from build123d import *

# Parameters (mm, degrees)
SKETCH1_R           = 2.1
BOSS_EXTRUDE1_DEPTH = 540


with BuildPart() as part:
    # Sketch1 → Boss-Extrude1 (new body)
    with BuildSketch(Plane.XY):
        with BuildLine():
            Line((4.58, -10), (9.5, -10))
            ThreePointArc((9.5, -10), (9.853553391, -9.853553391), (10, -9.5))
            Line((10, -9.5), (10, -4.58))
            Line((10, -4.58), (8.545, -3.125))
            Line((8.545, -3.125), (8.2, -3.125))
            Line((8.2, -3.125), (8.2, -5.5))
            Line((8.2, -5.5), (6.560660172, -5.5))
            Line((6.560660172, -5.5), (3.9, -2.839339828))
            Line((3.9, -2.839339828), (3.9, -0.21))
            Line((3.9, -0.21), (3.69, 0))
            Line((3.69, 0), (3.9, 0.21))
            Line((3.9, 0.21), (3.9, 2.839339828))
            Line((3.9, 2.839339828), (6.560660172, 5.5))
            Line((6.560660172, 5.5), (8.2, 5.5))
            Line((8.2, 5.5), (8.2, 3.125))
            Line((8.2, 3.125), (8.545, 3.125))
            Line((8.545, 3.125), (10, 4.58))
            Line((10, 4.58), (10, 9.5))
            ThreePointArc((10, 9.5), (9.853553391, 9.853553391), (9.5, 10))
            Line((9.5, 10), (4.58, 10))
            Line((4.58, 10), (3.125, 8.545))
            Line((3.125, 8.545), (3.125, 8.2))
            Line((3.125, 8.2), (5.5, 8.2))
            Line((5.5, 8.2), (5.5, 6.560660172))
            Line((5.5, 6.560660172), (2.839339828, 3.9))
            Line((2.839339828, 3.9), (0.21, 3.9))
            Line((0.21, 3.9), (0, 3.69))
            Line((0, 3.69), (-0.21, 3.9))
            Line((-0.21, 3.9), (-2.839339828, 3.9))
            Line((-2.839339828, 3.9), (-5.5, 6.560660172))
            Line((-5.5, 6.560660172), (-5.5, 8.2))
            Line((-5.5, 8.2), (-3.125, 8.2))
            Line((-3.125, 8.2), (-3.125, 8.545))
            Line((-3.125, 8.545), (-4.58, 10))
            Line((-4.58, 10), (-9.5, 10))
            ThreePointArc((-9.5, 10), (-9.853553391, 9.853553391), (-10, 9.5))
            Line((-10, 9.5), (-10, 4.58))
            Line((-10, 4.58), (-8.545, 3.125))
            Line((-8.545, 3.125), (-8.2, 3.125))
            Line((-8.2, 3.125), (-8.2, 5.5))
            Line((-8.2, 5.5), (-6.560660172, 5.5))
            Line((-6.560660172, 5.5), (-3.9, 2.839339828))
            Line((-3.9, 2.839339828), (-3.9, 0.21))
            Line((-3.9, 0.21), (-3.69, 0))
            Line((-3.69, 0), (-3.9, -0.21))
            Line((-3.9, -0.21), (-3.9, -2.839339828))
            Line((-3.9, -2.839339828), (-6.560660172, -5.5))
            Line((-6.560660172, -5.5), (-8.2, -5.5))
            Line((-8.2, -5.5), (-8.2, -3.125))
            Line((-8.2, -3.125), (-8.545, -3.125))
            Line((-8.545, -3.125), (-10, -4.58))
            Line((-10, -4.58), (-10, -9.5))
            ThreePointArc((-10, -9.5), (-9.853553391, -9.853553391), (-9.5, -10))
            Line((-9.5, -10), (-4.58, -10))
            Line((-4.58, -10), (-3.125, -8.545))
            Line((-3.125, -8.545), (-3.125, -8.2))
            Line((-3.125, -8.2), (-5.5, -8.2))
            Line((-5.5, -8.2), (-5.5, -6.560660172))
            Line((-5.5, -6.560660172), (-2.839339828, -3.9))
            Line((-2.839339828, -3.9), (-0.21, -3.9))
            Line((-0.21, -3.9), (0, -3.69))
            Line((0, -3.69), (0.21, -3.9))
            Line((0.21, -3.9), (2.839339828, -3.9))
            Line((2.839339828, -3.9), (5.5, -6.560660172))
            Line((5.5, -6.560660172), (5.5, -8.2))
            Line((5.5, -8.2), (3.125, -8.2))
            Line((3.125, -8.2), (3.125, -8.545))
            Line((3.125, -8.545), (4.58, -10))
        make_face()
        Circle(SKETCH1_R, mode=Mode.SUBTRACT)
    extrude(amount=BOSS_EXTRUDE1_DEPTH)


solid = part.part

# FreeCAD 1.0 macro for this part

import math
import FreeCAD as App
import Part
import Sketcher

V = App.Vector

doc = App.newDocument("Part")
params = doc.addObject("Spreadsheet::Sheet", "Params")
for row, (alias, value) in enumerate([
    ("sketch1_diameter", "4.2 mm"),
    ("sketch1_radius", "0.5 mm"),
    ("sketch1_width", "4.92 mm"),
    ("pad1_length", "540 mm"),
], start=1):
    params.set(f"A{row}", alias)
    params.set(f"B{row}", "=" + value)
    params.setAlias(f"B{row}", alias)

body = doc.addObject("PartDesign::Body", "Body")

# Sketch on XY plane
sketch1 = body.newObject("Sketcher::SketchObject", "Sketch")
sketch1.AttachmentSupport = (doc.getObject("XY_Plane"), [""])
sketch1.MapMode = "FlatFace"
sketch1.addGeometry([
    Part.LineSegment(V(4.58, -10, 0), V(9.5, -10, 0)),  # 0
    Part.ArcOfCircle(Part.Circle(V(9.5, -9.5, 0), V(0, 0, 1), 0.5), math.radians(-90), math.radians(0)),  # 1
    Part.LineSegment(V(10, -9.5, 0), V(10, -4.58, 0)),  # 2
    Part.LineSegment(V(10, -4.58, 0), V(8.545, -3.125, 0)),  # 3
    Part.LineSegment(V(8.545, -3.125, 0), V(8.2, -3.125, 0)),  # 4
    Part.LineSegment(V(8.2, -3.125, 0), V(8.2, -5.5, 0)),  # 5
    Part.LineSegment(V(8.2, -5.5, 0), V(6.56066, -5.5, 0)),  # 6
    Part.LineSegment(V(6.56066, -5.5, 0), V(3.9, -2.83934, 0)),  # 7
    Part.LineSegment(V(3.9, -2.83934, 0), V(3.9, -0.21, 0)),  # 8
    Part.LineSegment(V(3.9, -0.21, 0), V(3.69, 0, 0)),  # 9
    Part.LineSegment(V(3.69, 0, 0), V(3.9, 0.21, 0)),  # 10
    Part.LineSegment(V(3.9, 0.21, 0), V(3.9, 2.83934, 0)),  # 11
    Part.LineSegment(V(3.9, 2.83934, 0), V(6.56066, 5.5, 0)),  # 12
    Part.LineSegment(V(6.56066, 5.5, 0), V(8.2, 5.5, 0)),  # 13
    Part.LineSegment(V(8.2, 5.5, 0), V(8.2, 3.125, 0)),  # 14
    Part.LineSegment(V(8.2, 3.125, 0), V(8.545, 3.125, 0)),  # 15
    Part.LineSegment(V(8.545, 3.125, 0), V(10, 4.58, 0)),  # 16
    Part.LineSegment(V(10, 4.58, 0), V(10, 9.5, 0)),  # 17
    Part.ArcOfCircle(Part.Circle(V(9.5, 9.5, 0), V(0, 0, 1), 0.5), math.radians(0), math.radians(90)),  # 18
    Part.LineSegment(V(9.5, 10, 0), V(4.58, 10, 0)),  # 19
    Part.LineSegment(V(4.58, 10, 0), V(3.125, 8.545, 0)),  # 20
    Part.LineSegment(V(3.125, 8.545, 0), V(3.125, 8.2, 0)),  # 21
    Part.LineSegment(V(3.125, 8.2, 0), V(5.5, 8.2, 0)),  # 22
    Part.LineSegment(V(5.5, 8.2, 0), V(5.5, 6.56066, 0)),  # 23
    Part.LineSegment(V(5.5, 6.56066, 0), V(2.83934, 3.9, 0)),  # 24
    Part.LineSegment(V(2.83934, 3.9, 0), V(0.21, 3.9, 0)),  # 25
    Part.LineSegment(V(0.21, 3.9, 0), V(0, 3.69, 0)),  # 26
    Part.LineSegment(V(0, 3.69, 0), V(-0.21, 3.9, 0)),  # 27
    Part.LineSegment(V(-0.21, 3.9, 0), V(-2.83934, 3.9, 0)),  # 28
    Part.LineSegment(V(-2.83934, 3.9, 0), V(-5.5, 6.56066, 0)),  # 29
    Part.LineSegment(V(-5.5, 6.56066, 0), V(-5.5, 8.2, 0)),  # 30
    Part.LineSegment(V(-5.5, 8.2, 0), V(-3.125, 8.2, 0)),  # 31
    Part.LineSegment(V(-3.125, 8.2, 0), V(-3.125, 8.545, 0)),  # 32
    Part.LineSegment(V(-3.125, 8.545, 0), V(-4.58, 10, 0)),  # 33
    Part.LineSegment(V(-4.58, 10, 0), V(-9.5, 10, 0)),  # 34
    Part.ArcOfCircle(Part.Circle(V(-9.5, 9.5, 0), V(0, 0, 1), 0.5), math.radians(90), math.radians(180)),  # 35
    Part.LineSegment(V(-10, 9.5, 0), V(-10, 4.58, 0)),  # 36
    Part.LineSegment(V(-10, 4.58, 0), V(-8.545, 3.125, 0)),  # 37
    Part.LineSegment(V(-8.545, 3.125, 0), V(-8.2, 3.125, 0)),  # 38
    Part.LineSegment(V(-8.2, 3.125, 0), V(-8.2, 5.5, 0)),  # 39
    Part.LineSegment(V(-8.2, 5.5, 0), V(-6.56066, 5.5, 0)),  # 40
    Part.LineSegment(V(-6.56066, 5.5, 0), V(-3.9, 2.83934, 0)),  # 41
    Part.LineSegment(V(-3.9, 2.83934, 0), V(-3.9, 0.21, 0)),  # 42
    Part.LineSegment(V(-3.9, 0.21, 0), V(-3.69, 0, 0)),  # 43
    Part.LineSegment(V(-3.69, 0, 0), V(-3.9, -0.21, 0)),  # 44
    Part.LineSegment(V(-3.9, -0.21, 0), V(-3.9, -2.83934, 0)),  # 45
    Part.LineSegment(V(-3.9, -2.83934, 0), V(-6.56066, -5.5, 0)),  # 46
    Part.LineSegment(V(-6.56066, -5.5, 0), V(-8.2, -5.5, 0)),  # 47
    Part.LineSegment(V(-8.2, -5.5, 0), V(-8.2, -3.125, 0)),  # 48
    Part.LineSegment(V(-8.2, -3.125, 0), V(-8.545, -3.125, 0)),  # 49
    Part.LineSegment(V(-8.545, -3.125, 0), V(-10, -4.58, 0)),  # 50
    Part.LineSegment(V(-10, -4.58, 0), V(-10, -9.5, 0)),  # 51
    Part.ArcOfCircle(Part.Circle(V(-9.5, -9.5, 0), V(0, 0, 1), 0.5), math.radians(180), math.radians(270)),  # 52
    Part.LineSegment(V(-9.5, -10, 0), V(-4.58, -10, 0)),  # 53
    Part.LineSegment(V(-4.58, -10, 0), V(-3.125, -8.545, 0)),  # 54
    Part.LineSegment(V(-3.125, -8.545, 0), V(-3.125, -8.2, 0)),  # 55
    Part.LineSegment(V(-3.125, -8.2, 0), V(-5.5, -8.2, 0)),  # 56
    Part.LineSegment(V(-5.5, -8.2, 0), V(-5.5, -6.56066, 0)),  # 57
    Part.LineSegment(V(-5.5, -6.56066, 0), V(-2.83934, -3.9, 0)),  # 58
    Part.LineSegment(V(-2.83934, -3.9, 0), V(-0.21, -3.9, 0)),  # 59
    Part.LineSegment(V(-0.21, -3.9, 0), V(0, -3.69, 0)),  # 60
    Part.LineSegment(V(0, -3.69, 0), V(0.21, -3.9, 0)),  # 61
    Part.LineSegment(V(0.21, -3.9, 0), V(2.83934, -3.9, 0)),  # 62
    Part.LineSegment(V(2.83934, -3.9, 0), V(5.5, -6.56066, 0)),  # 63
    Part.LineSegment(V(5.5, -6.56066, 0), V(5.5, -8.2, 0)),  # 64
    Part.LineSegment(V(5.5, -8.2, 0), V(3.125, -8.2, 0)),  # 65
    Part.LineSegment(V(3.125, -8.2, 0), V(3.125, -8.545, 0)),  # 66
    Part.LineSegment(V(3.125, -8.545, 0), V(4.58, -10, 0)),  # 67
    Part.Circle(V(0, 0, 0), V(0, 0, 1), 2.1),  # 68
], False)
sketch1.addConstraint([
    Sketcher.Constraint("Tangent", 0, 2, 1, 1),
    Sketcher.Constraint("Tangent", 1, 2, 2, 1),
    Sketcher.Constraint("Coincident", 2, 2, 3, 1),
    Sketcher.Constraint("Coincident", 3, 2, 4, 1),
    Sketcher.Constraint("Coincident", 4, 2, 5, 1),
    Sketcher.Constraint("Coincident", 5, 2, 6, 1),
    Sketcher.Constraint("Coincident", 6, 2, 7, 1),
    Sketcher.Constraint("Coincident", 7, 2, 8, 1),
    Sketcher.Constraint("Coincident", 8, 2, 9, 1),
    Sketcher.Constraint("Coincident", 9, 2, 10, 1),
    Sketcher.Constraint("Coincident", 10, 2, 11, 1),
    Sketcher.Constraint("Coincident", 11, 2, 12, 1),
    Sketcher.Constraint("Coincident", 12, 2, 13, 1),
    Sketcher.Constraint("Coincident", 13, 2, 14, 1),
    Sketcher.Constraint("Coincident", 14, 2, 15, 1),
    Sketcher.Constraint("Coincident", 15, 2, 16, 1),
    Sketcher.Constraint("Coincident", 16, 2, 17, 1),
    Sketcher.Constraint("Tangent", 17, 2, 18, 1),
    Sketcher.Constraint("Tangent", 18, 2, 19, 1),
    Sketcher.Constraint("Coincident", 19, 2, 20, 1),
    Sketcher.Constraint("Coincident", 20, 2, 21, 1),
    Sketcher.Constraint("Coincident", 21, 2, 22, 1),
    Sketcher.Constraint("Coincident", 22, 2, 23, 1),
    Sketcher.Constraint("Coincident", 23, 2, 24, 1),
    Sketcher.Constraint("Coincident", 24, 2, 25, 1),
    Sketcher.Constraint("Coincident", 25, 2, 26, 1),
    Sketcher.Constraint("Coincident", 26, 2, 27, 1),
    Sketcher.Constraint("Coincident", 27, 2, 28, 1),
    Sketcher.Constraint("Coincident", 28, 2, 29, 1),
    Sketcher.Constraint("Coincident", 29, 2, 30, 1),
    Sketcher.Constraint("Coincident", 30, 2, 31, 1),
    Sketcher.Constraint("Coincident", 31, 2, 32, 1),
    Sketcher.Constraint("Coincident", 32, 2, 33, 1),
    Sketcher.Constraint("Coincident", 33, 2, 34, 1),
    Sketcher.Constraint("Tangent", 34, 2, 35, 1),
    Sketcher.Constraint("Tangent", 35, 2, 36, 1),
    Sketcher.Constraint("Coincident", 36, 2, 37, 1),
    Sketcher.Constraint("Coincident", 37, 2, 38, 1),
    Sketcher.Constraint("Coincident", 38, 2, 39, 1),
    Sketcher.Constraint("Coincident", 39, 2, 40, 1),
    Sketcher.Constraint("Coincident", 40, 2, 41, 1),
    Sketcher.Constraint("Coincident", 41, 2, 42, 1),
    Sketcher.Constraint("Coincident", 42, 2, 43, 1),
    Sketcher.Constraint("Coincident", 43, 2, 44, 1),
    Sketcher.Constraint("Coincident", 44, 2, 45, 1),
    Sketcher.Constraint("Coincident", 45, 2, 46, 1),
    Sketcher.Constraint("Coincident", 46, 2, 47, 1),
    Sketcher.Constraint("Coincident", 47, 2, 48, 1),
    Sketcher.Constraint("Coincident", 48, 2, 49, 1),
    Sketcher.Constraint("Coincident", 49, 2, 50, 1),
    Sketcher.Constraint("Coincident", 50, 2, 51, 1),
    Sketcher.Constraint("Tangent", 51, 2, 52, 1),
    Sketcher.Constraint("Tangent", 52, 2, 53, 1),
    Sketcher.Constraint("Coincident", 53, 2, 54, 1),
    Sketcher.Constraint("Coincident", 54, 2, 55, 1),
    Sketcher.Constraint("Coincident", 55, 2, 56, 1),
    Sketcher.Constraint("Coincident", 56, 2, 57, 1),
    Sketcher.Constraint("Coincident", 57, 2, 58, 1),
    Sketcher.Constraint("Coincident", 58, 2, 59, 1),
    Sketcher.Constraint("Coincident", 59, 2, 60, 1),
    Sketcher.Constraint("Coincident", 60, 2, 61, 1),
    Sketcher.Constraint("Coincident", 61, 2, 62, 1),
    Sketcher.Constraint("Coincident", 62, 2, 63, 1),
    Sketcher.Constraint("Coincident", 63, 2, 64, 1),
    Sketcher.Constraint("Coincident", 64, 2, 65, 1),
    Sketcher.Constraint("Coincident", 65, 2, 66, 1),
    Sketcher.Constraint("Coincident", 66, 2, 67, 1),
    Sketcher.Constraint("Coincident", 67, 2, 0, 1),
    Sketcher.Constraint("Horizontal", 0),
    Sketcher.Constraint("Vertical", 2),
    Sketcher.Constraint("Horizontal", 4),
    Sketcher.Constraint("Vertical", 5),
    Sketcher.Constraint("Horizontal", 6),
    Sketcher.Constraint("Vertical", 8),
    Sketcher.Constraint("Vertical", 11),
    Sketcher.Constraint("Horizontal", 13),
    Sketcher.Constraint("Vertical", 14),
    Sketcher.Constraint("Horizontal", 15),
    Sketcher.Constraint("Vertical", 17),
    Sketcher.Constraint("Horizontal", 19),
    Sketcher.Constraint("Vertical", 21),
    Sketcher.Constraint("Horizontal", 22),
    Sketcher.Constraint("Vertical", 23),
    Sketcher.Constraint("Horizontal", 25),
    Sketcher.Constraint("Horizontal", 28),
    Sketcher.Constraint("Vertical", 30),
    Sketcher.Constraint("Horizontal", 31),
    Sketcher.Constraint("Vertical", 32),
    Sketcher.Constraint("Horizontal", 34),
    Sketcher.Constraint("Vertical", 36),
    Sketcher.Constraint("Horizontal", 38),
    Sketcher.Constraint("Vertical", 39),
    Sketcher.Constraint("Horizontal", 40),
    Sketcher.Constraint("Vertical", 42),
    Sketcher.Constraint("Vertical", 45),
    Sketcher.Constraint("Horizontal", 47),
    Sketcher.Constraint("Vertical", 48),
    Sketcher.Constraint("Horizontal", 49),
    Sketcher.Constraint("Vertical", 51),
    Sketcher.Constraint("Horizontal", 53),
    Sketcher.Constraint("Vertical", 55),
    Sketcher.Constraint("Horizontal", 56),
    Sketcher.Constraint("Vertical", 57),
    Sketcher.Constraint("Horizontal", 59),
    Sketcher.Constraint("Horizontal", 62),
    Sketcher.Constraint("Vertical", 64),
    Sketcher.Constraint("Horizontal", 65),
    Sketcher.Constraint("Vertical", 66),
    Sketcher.Constraint("Coincident", 68, 3, -1, 1),
    Sketcher.Constraint("Equal", 1, 18),
    Sketcher.Constraint("Equal", 18, 35),
    Sketcher.Constraint("Equal", 35, 52),
    Sketcher.Constraint("Symmetric", 1, 3, 35, 3, -1, 1),
    Sketcher.Constraint("Symmetric", 18, 3, 52, 3, -1, 1),
    Sketcher.Constraint("Symmetric", 3, 2, 37, 2, -1, 1),
    Sketcher.Constraint("Symmetric", 5, 2, 39, 2, -1, 1),
    Sketcher.Constraint("Symmetric", 7, 2, 41, 2, -1, 1),
    Sketcher.Constraint("Symmetric", 9, 2, 43, 2, -1, 1),
    Sketcher.Constraint("Symmetric", 10, 2, 44, 2, -1, 1),
    Sketcher.Constraint("Symmetric", 12, 2, 46, 2, -1, 1),
    Sketcher.Constraint("Symmetric", 14, 2, 48, 2, -1, 1),
    Sketcher.Constraint("Symmetric", 20, 2, 54, 2, -1, 1),
    Sketcher.Constraint("Symmetric", 22, 2, 56, 2, -1, 1),
    Sketcher.Constraint("Symmetric", 24, 2, 58, 2, -1, 1),
    Sketcher.Constraint("Symmetric", 26, 2, 60, 2, -1, 1),
    Sketcher.Constraint("Symmetric", 27, 2, 61, 2, -1, 1),
    Sketcher.Constraint("Symmetric", 29, 2, 63, 2, -1, 1),
    Sketcher.Constraint("Symmetric", 31, 2, 65, 2, -1, 1),
    Sketcher.Constraint("Symmetric", 18, 3, 35, 3, -2),
    Sketcher.Constraint("Symmetric", 25, 2, 27, 2, -2),
    Sketcher.Constraint("Symmetric", 23, 2, 29, 2, -2),
    Sketcher.Constraint("Symmetric", 21, 2, 31, 2, -2),
    Sketcher.Constraint("Symmetric", 15, 2, 37, 2, -2),
    Sketcher.Constraint("Symmetric", 13, 2, 39, 2, -2),
    Sketcher.Constraint("Symmetric", 11, 2, 41, 2, -2),
    Sketcher.Constraint("PointOnObject", 9, 2, -1),
    Sketcher.Constraint("PointOnObject", 26, 2, -2),
    Sketcher.Constraint("Parallel", 3, 7),
    Sketcher.Constraint("Parallel", 7, 9),
    Sketcher.Constraint("Perpendicular", 9, 10),
    Sketcher.Constraint("Parallel", 10, 12),
    Sketcher.Constraint("Parallel", 12, 16),
    Sketcher.Constraint("Parallel", 16, 20),
    Sketcher.Constraint("Parallel", 20, 24),
    Sketcher.Constraint("Parallel", 24, 26),
    Sketcher.Constraint("Perpendicular", 26, 27),
    Sketcher.Constraint("Parallel", 27, 29),
    Sketcher.Constraint("Parallel", 29, 33),
    Sketcher.Constraint("Parallel", 33, 37),
    Sketcher.Constraint("Parallel", 37, 41),
    Sketcher.Constraint("Parallel", 41, 43),
    Sketcher.Constraint("Parallel", 44, 46),
    Sketcher.Constraint("Parallel", 46, 50),
    Sketcher.Constraint("Parallel", 50, 54),
    Sketcher.Constraint("Parallel", 54, 58),
    Sketcher.Constraint("Parallel", 58, 60),
    Sketcher.Constraint("Parallel", 61, 63),
    Sketcher.Constraint("Parallel", 63, 67),
    Sketcher.Constraint("Horizontal", 20, 2, 32, 2),
    Sketcher.Constraint("Horizontal", 2, 2, 50, 2),
    Sketcher.Constraint("Horizontal", 54, 2, 66, 2),
    Sketcher.Constraint("Equal", 53, 2),
    Sketcher.Constraint("Equal", 65, 5),
    Sketcher.Constraint("Equal", 62, 8),
    Sketcher.Constraint("Equal", 49, 21),
    Sketcher.Constraint("Equal", 47, 23),
    Sketcher.Constraint("Equal", 16, 20),
    Sketcher.Constraint("Equal", 12, 24),
    Sketcher.Constraint("Equal", 10, 26),
    Sketcher.Constraint("Diameter", 68, 4.2),
    Sketcher.Constraint("Radius", 1, 0.5),
    Sketcher.Constraint("DistanceY", 0, 2, -1, 1, 10.0),
    Sketcher.Constraint("DistanceX", 0, 1, 0, 2, 4.92),
    Sketcher.Constraint("DistanceX", -1, 1, 4, 2, 8.2),
    Sketcher.Constraint("DistanceY", 5, 2, -1, 1, 5.5),
    Sketcher.Constraint("DistanceX", -1, 1, 7, 2, 3.9),
    Sketcher.Constraint("DistanceX", 4, 2, 4, 1, 0.345),
    Sketcher.Constraint("DistanceY", 8, 2, -1, 1, 0.21),
    Sketcher.Constraint("DistanceX", 6, 2, 6, 1, 1.63934),
])
sketch1.setExpression("Constraints[169]", "Params.sketch1_diameter")
sketch1.setExpression("Constraints[170]", "Params.sketch1_radius")
sketch1.setExpression("Constraints[172]", "Params.sketch1_width")
pad1 = body.newObject("PartDesign::Pad", "Pad")
pad1.Profile = sketch1
pad1.setExpression("Length", "Params.pad1_length")

doc.recompute()
